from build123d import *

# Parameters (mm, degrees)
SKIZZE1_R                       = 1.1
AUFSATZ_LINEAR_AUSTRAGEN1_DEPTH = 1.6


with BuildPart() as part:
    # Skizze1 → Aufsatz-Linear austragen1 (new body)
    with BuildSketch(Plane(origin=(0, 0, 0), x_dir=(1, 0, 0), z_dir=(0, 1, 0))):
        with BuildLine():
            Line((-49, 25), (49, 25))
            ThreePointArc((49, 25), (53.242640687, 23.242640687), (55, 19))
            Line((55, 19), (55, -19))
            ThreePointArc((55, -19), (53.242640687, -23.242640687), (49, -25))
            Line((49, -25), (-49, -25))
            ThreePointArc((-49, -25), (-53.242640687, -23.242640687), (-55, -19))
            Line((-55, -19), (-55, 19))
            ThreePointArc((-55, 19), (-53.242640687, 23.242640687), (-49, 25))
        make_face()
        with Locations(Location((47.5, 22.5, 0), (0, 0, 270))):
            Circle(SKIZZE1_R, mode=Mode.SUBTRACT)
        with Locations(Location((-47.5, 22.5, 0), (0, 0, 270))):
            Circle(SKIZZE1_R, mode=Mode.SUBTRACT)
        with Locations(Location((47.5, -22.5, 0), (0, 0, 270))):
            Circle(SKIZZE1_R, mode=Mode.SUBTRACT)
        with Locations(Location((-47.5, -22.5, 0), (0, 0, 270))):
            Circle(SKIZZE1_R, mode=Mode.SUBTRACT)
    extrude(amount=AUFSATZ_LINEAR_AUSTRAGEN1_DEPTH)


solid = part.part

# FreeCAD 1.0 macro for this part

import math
import FreeCAD as App
import Part
import Sketcher
from FreeCAD import Vector
Q = App.Units.Quantity

doc = App.newDocument("Part")
body = doc.addObject("PartDesign::Body", "Body")

sketch1 = body.newObject("Sketcher::SketchObject", "Sketch")
sketch1.AttachmentSupport = (doc.getObject("XZ_Plane"), [""])
sketch1.MapMode = "FlatFace"
sketch1.addGeometry([
    Part.LineSegment(Vector(49, -25, 0), Vector(-49, -25, 0)),
    Part.ArcOfCircle(Part.Circle(Vector(-49, -19, 0), Vector(0, 0, 1), 6), math.radians(180), math.radians(270)),
    Part.LineSegment(Vector(-55, -19, 0), Vector(-55, 19, 0)),
    Part.ArcOfCircle(Part.Circle(Vector(-49, 19, 0), Vector(0, 0, 1), 6), math.radians(90), math.radians(180)),
    Part.LineSegment(Vector(-49, 25, 0), Vector(49, 25, 0)),
    Part.ArcOfCircle(Part.Circle(Vector(49, 19, 0), Vector(0, 0, 1), 6), math.radians(0), math.radians(90)),
    Part.LineSegment(Vector(55, 19, 0), Vector(55, -19, 0)),
    Part.ArcOfCircle(Part.Circle(Vector(49, -19, 0), Vector(0, 0, 1), 6), math.radians(-90), math.radians(0)),
    Part.Circle(Vector(47.5, 22.5, 0), Vector(0, 0, 1), 1.1),
    Part.Circle(Vector(-47.5, 22.5, 0), Vector(0, 0, 1), 1.1),
    Part.Circle(Vector(47.5, -22.5, 0), Vector(0, 0, 1), 1.1),
    Part.Circle(Vector(-47.5, -22.5, 0), Vector(0, 0, 1), 1.1),
], False)
sketch1.addConstraint([
    Sketcher.Constraint("Tangent", 0, 2, 1, 2),
    Sketcher.Constraint("Tangent", 1, 1, 2, 1),
    Sketcher.Constraint("Tangent", 2, 2, 3, 2),
    Sketcher.Constraint("Tangent", 3, 1, 4, 1),
    Sketcher.Constraint("Tangent", 4, 2, 5, 2),
    Sketcher.Constraint("Tangent", 5, 1, 6, 1),
    Sketcher.Constraint("Tangent", 6, 2, 7, 2),
    Sketcher.Constraint("Tangent", 7, 1, 0, 1),
    Sketcher.Constraint("Horizontal", 0),
    Sketcher.Constraint("Vertical", 2),
    Sketcher.Constraint("Horizontal", 4),
    Sketcher.Constraint("Vertical", 6),
    Sketcher.Constraint("Equal", 1, 3),
    Sketcher.Constraint("Equal", 3, 5),
    Sketcher.Constraint("Equal", 5, 7),
    Sketcher.Constraint("Equal", 8, 9),
    Sketcher.Constraint("Equal", 9, 10),
    Sketcher.Constraint("Equal", 10, 11),
    Sketcher.Constraint("Symmetric", 1, 3, 5, 3, -1, 1),
    Sketcher.Constraint("Symmetric", 9, 3, 10, 3, -1, 1),
    Sketcher.Constraint("Symmetric", 8, 3, 11, 3, -1, 1),
    Sketcher.Constraint("Symmetric", 8, 3, 9, 3, -2),
    Sketcher.Constraint("Radius", 1, Q("6 mm")),
    Sketcher.Constraint("Diameter", 8, Q("2.2 mm")),
    Sketcher.Constraint("DistanceX", 0, 2, 0, 1, Q("98 mm")),
    Sketcher.Constraint("DistanceY", 2, 1, 2, 2, Q("38 mm")),
    Sketcher.Constraint("DistanceX", 9, 3, 8, 3, Q("95 mm")),
    Sketcher.Constraint("DistanceY", 10, 3, 8, 3, Q("45 mm")),
])
pad1 = body.newObject("PartDesign::Pad", "Pad")
pad1.Profile = sketch1
pad1.Length = 1.6
pad1.Reversed = True

doc.recompute()
